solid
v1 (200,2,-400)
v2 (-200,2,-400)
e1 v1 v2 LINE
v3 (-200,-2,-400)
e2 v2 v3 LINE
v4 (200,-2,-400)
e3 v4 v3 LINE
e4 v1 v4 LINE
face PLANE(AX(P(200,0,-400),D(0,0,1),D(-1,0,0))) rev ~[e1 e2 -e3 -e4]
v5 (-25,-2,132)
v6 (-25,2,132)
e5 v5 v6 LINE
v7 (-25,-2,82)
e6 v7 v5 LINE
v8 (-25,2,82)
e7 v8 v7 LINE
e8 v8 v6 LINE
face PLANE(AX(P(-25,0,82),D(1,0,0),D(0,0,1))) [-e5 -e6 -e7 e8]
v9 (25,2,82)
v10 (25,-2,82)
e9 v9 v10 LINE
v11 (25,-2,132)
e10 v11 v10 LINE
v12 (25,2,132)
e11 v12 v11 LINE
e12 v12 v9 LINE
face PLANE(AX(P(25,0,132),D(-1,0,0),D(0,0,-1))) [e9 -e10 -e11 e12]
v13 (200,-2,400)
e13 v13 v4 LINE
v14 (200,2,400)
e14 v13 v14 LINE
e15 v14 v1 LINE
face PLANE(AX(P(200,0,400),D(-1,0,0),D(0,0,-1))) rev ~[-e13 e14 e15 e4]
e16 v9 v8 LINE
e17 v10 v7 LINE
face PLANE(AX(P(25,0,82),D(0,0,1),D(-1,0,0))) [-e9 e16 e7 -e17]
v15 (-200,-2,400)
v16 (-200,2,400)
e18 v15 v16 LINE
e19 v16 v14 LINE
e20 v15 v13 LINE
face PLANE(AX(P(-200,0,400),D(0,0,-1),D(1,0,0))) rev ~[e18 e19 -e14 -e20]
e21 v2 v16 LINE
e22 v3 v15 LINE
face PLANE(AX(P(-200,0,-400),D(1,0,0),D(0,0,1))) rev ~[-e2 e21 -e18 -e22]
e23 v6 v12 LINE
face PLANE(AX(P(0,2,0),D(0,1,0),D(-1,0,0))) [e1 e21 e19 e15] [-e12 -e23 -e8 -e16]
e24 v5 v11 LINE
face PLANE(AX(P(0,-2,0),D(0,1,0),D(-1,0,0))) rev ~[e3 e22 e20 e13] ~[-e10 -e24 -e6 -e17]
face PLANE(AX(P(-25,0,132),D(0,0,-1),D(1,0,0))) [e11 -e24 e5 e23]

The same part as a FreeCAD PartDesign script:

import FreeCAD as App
import Part
import Sketcher

V = App.Vector
Q = App.Units.Quantity


def add_polygon(sketch, points):
    """Adds a closed chain of lines whose ends are joined by coincident constraints."""
    first, n = sketch.GeometryCount, len(points)
    for a, b in zip(points, points[1:] + points[:1]):
        sketch.addGeometry(Part.LineSegment(App.Vector(*a, 0), App.Vector(*b, 0)), False)
    for i in range(n):
        sketch.addConstraint(Sketcher.Constraint("Coincident", first + i, 2, first + (i + 1) % n, 1))

doc = App.newDocument("Part")
body = doc.addObject("PartDesign::Body", "Body")

# Sketch on XZ plane
sketch1 = body.newObject("Sketcher::SketchObject", "Sketch")
sketch1.AttachmentSupport = (doc.getObject("XZ_Plane"), [""])
sketch1.MapMode = "FlatFace"
add_polygon(sketch1, [(-200, -400), (-200, 400), (200, 400), (200, -400)])  # lines 0-3
add_polygon(sketch1, [(25, 132), (-25, 132), (-25, 82), (25, 82)])  # lines 4-7
sketch1.addConstraint(Sketcher.Constraint("Vertical", 0))
sketch1.addConstraint(Sketcher.Constraint("Horizontal", 1))
sketch1.addConstraint(Sketcher.Constraint("Vertical", 2))
sketch1.addConstraint(Sketcher.Constraint("Horizontal", 3))
sketch1.addConstraint(Sketcher.Constraint("Horizontal", 4))
sketch1.addConstraint(Sketcher.Constraint("Vertical", 5))
sketch1.addConstraint(Sketcher.Constraint("Horizontal", 6))
sketch1.addConstraint(Sketcher.Constraint("Vertical", 7))
sketch1.addConstraint(Sketcher.Constraint("Symmetric", 0, 2, 2, 2, -1, 1))
sketch1.addConstraint(Sketcher.Constraint("Equal", 6, 5))
sketch1.addConstraint(Sketcher.Constraint("DistanceX", 1, 1, 1, 2, Q("400 mm")))
sketch1.addConstraint(Sketcher.Constraint("DistanceX", 4, 2, 4, 1, Q("50 mm")))
sketch1.addConstraint(Sketcher.Constraint("DistanceY", 0, 1, 0, 2, Q("800 mm")))
sketch1.addConstraint(Sketcher.Constraint("DistanceX", 0, 2, 4, 2, Q("175 mm")))
sketch1.addConstraint(Sketcher.Constraint("DistanceY", 4, 2, 0, 2, Q("268 mm")))
pad1 = body.newObject("PartDesign::Pad", "Pad")
pad1.Profile = sketch1
pad1.Length = 4
pad1.Midplane = True

doc.recompute()
